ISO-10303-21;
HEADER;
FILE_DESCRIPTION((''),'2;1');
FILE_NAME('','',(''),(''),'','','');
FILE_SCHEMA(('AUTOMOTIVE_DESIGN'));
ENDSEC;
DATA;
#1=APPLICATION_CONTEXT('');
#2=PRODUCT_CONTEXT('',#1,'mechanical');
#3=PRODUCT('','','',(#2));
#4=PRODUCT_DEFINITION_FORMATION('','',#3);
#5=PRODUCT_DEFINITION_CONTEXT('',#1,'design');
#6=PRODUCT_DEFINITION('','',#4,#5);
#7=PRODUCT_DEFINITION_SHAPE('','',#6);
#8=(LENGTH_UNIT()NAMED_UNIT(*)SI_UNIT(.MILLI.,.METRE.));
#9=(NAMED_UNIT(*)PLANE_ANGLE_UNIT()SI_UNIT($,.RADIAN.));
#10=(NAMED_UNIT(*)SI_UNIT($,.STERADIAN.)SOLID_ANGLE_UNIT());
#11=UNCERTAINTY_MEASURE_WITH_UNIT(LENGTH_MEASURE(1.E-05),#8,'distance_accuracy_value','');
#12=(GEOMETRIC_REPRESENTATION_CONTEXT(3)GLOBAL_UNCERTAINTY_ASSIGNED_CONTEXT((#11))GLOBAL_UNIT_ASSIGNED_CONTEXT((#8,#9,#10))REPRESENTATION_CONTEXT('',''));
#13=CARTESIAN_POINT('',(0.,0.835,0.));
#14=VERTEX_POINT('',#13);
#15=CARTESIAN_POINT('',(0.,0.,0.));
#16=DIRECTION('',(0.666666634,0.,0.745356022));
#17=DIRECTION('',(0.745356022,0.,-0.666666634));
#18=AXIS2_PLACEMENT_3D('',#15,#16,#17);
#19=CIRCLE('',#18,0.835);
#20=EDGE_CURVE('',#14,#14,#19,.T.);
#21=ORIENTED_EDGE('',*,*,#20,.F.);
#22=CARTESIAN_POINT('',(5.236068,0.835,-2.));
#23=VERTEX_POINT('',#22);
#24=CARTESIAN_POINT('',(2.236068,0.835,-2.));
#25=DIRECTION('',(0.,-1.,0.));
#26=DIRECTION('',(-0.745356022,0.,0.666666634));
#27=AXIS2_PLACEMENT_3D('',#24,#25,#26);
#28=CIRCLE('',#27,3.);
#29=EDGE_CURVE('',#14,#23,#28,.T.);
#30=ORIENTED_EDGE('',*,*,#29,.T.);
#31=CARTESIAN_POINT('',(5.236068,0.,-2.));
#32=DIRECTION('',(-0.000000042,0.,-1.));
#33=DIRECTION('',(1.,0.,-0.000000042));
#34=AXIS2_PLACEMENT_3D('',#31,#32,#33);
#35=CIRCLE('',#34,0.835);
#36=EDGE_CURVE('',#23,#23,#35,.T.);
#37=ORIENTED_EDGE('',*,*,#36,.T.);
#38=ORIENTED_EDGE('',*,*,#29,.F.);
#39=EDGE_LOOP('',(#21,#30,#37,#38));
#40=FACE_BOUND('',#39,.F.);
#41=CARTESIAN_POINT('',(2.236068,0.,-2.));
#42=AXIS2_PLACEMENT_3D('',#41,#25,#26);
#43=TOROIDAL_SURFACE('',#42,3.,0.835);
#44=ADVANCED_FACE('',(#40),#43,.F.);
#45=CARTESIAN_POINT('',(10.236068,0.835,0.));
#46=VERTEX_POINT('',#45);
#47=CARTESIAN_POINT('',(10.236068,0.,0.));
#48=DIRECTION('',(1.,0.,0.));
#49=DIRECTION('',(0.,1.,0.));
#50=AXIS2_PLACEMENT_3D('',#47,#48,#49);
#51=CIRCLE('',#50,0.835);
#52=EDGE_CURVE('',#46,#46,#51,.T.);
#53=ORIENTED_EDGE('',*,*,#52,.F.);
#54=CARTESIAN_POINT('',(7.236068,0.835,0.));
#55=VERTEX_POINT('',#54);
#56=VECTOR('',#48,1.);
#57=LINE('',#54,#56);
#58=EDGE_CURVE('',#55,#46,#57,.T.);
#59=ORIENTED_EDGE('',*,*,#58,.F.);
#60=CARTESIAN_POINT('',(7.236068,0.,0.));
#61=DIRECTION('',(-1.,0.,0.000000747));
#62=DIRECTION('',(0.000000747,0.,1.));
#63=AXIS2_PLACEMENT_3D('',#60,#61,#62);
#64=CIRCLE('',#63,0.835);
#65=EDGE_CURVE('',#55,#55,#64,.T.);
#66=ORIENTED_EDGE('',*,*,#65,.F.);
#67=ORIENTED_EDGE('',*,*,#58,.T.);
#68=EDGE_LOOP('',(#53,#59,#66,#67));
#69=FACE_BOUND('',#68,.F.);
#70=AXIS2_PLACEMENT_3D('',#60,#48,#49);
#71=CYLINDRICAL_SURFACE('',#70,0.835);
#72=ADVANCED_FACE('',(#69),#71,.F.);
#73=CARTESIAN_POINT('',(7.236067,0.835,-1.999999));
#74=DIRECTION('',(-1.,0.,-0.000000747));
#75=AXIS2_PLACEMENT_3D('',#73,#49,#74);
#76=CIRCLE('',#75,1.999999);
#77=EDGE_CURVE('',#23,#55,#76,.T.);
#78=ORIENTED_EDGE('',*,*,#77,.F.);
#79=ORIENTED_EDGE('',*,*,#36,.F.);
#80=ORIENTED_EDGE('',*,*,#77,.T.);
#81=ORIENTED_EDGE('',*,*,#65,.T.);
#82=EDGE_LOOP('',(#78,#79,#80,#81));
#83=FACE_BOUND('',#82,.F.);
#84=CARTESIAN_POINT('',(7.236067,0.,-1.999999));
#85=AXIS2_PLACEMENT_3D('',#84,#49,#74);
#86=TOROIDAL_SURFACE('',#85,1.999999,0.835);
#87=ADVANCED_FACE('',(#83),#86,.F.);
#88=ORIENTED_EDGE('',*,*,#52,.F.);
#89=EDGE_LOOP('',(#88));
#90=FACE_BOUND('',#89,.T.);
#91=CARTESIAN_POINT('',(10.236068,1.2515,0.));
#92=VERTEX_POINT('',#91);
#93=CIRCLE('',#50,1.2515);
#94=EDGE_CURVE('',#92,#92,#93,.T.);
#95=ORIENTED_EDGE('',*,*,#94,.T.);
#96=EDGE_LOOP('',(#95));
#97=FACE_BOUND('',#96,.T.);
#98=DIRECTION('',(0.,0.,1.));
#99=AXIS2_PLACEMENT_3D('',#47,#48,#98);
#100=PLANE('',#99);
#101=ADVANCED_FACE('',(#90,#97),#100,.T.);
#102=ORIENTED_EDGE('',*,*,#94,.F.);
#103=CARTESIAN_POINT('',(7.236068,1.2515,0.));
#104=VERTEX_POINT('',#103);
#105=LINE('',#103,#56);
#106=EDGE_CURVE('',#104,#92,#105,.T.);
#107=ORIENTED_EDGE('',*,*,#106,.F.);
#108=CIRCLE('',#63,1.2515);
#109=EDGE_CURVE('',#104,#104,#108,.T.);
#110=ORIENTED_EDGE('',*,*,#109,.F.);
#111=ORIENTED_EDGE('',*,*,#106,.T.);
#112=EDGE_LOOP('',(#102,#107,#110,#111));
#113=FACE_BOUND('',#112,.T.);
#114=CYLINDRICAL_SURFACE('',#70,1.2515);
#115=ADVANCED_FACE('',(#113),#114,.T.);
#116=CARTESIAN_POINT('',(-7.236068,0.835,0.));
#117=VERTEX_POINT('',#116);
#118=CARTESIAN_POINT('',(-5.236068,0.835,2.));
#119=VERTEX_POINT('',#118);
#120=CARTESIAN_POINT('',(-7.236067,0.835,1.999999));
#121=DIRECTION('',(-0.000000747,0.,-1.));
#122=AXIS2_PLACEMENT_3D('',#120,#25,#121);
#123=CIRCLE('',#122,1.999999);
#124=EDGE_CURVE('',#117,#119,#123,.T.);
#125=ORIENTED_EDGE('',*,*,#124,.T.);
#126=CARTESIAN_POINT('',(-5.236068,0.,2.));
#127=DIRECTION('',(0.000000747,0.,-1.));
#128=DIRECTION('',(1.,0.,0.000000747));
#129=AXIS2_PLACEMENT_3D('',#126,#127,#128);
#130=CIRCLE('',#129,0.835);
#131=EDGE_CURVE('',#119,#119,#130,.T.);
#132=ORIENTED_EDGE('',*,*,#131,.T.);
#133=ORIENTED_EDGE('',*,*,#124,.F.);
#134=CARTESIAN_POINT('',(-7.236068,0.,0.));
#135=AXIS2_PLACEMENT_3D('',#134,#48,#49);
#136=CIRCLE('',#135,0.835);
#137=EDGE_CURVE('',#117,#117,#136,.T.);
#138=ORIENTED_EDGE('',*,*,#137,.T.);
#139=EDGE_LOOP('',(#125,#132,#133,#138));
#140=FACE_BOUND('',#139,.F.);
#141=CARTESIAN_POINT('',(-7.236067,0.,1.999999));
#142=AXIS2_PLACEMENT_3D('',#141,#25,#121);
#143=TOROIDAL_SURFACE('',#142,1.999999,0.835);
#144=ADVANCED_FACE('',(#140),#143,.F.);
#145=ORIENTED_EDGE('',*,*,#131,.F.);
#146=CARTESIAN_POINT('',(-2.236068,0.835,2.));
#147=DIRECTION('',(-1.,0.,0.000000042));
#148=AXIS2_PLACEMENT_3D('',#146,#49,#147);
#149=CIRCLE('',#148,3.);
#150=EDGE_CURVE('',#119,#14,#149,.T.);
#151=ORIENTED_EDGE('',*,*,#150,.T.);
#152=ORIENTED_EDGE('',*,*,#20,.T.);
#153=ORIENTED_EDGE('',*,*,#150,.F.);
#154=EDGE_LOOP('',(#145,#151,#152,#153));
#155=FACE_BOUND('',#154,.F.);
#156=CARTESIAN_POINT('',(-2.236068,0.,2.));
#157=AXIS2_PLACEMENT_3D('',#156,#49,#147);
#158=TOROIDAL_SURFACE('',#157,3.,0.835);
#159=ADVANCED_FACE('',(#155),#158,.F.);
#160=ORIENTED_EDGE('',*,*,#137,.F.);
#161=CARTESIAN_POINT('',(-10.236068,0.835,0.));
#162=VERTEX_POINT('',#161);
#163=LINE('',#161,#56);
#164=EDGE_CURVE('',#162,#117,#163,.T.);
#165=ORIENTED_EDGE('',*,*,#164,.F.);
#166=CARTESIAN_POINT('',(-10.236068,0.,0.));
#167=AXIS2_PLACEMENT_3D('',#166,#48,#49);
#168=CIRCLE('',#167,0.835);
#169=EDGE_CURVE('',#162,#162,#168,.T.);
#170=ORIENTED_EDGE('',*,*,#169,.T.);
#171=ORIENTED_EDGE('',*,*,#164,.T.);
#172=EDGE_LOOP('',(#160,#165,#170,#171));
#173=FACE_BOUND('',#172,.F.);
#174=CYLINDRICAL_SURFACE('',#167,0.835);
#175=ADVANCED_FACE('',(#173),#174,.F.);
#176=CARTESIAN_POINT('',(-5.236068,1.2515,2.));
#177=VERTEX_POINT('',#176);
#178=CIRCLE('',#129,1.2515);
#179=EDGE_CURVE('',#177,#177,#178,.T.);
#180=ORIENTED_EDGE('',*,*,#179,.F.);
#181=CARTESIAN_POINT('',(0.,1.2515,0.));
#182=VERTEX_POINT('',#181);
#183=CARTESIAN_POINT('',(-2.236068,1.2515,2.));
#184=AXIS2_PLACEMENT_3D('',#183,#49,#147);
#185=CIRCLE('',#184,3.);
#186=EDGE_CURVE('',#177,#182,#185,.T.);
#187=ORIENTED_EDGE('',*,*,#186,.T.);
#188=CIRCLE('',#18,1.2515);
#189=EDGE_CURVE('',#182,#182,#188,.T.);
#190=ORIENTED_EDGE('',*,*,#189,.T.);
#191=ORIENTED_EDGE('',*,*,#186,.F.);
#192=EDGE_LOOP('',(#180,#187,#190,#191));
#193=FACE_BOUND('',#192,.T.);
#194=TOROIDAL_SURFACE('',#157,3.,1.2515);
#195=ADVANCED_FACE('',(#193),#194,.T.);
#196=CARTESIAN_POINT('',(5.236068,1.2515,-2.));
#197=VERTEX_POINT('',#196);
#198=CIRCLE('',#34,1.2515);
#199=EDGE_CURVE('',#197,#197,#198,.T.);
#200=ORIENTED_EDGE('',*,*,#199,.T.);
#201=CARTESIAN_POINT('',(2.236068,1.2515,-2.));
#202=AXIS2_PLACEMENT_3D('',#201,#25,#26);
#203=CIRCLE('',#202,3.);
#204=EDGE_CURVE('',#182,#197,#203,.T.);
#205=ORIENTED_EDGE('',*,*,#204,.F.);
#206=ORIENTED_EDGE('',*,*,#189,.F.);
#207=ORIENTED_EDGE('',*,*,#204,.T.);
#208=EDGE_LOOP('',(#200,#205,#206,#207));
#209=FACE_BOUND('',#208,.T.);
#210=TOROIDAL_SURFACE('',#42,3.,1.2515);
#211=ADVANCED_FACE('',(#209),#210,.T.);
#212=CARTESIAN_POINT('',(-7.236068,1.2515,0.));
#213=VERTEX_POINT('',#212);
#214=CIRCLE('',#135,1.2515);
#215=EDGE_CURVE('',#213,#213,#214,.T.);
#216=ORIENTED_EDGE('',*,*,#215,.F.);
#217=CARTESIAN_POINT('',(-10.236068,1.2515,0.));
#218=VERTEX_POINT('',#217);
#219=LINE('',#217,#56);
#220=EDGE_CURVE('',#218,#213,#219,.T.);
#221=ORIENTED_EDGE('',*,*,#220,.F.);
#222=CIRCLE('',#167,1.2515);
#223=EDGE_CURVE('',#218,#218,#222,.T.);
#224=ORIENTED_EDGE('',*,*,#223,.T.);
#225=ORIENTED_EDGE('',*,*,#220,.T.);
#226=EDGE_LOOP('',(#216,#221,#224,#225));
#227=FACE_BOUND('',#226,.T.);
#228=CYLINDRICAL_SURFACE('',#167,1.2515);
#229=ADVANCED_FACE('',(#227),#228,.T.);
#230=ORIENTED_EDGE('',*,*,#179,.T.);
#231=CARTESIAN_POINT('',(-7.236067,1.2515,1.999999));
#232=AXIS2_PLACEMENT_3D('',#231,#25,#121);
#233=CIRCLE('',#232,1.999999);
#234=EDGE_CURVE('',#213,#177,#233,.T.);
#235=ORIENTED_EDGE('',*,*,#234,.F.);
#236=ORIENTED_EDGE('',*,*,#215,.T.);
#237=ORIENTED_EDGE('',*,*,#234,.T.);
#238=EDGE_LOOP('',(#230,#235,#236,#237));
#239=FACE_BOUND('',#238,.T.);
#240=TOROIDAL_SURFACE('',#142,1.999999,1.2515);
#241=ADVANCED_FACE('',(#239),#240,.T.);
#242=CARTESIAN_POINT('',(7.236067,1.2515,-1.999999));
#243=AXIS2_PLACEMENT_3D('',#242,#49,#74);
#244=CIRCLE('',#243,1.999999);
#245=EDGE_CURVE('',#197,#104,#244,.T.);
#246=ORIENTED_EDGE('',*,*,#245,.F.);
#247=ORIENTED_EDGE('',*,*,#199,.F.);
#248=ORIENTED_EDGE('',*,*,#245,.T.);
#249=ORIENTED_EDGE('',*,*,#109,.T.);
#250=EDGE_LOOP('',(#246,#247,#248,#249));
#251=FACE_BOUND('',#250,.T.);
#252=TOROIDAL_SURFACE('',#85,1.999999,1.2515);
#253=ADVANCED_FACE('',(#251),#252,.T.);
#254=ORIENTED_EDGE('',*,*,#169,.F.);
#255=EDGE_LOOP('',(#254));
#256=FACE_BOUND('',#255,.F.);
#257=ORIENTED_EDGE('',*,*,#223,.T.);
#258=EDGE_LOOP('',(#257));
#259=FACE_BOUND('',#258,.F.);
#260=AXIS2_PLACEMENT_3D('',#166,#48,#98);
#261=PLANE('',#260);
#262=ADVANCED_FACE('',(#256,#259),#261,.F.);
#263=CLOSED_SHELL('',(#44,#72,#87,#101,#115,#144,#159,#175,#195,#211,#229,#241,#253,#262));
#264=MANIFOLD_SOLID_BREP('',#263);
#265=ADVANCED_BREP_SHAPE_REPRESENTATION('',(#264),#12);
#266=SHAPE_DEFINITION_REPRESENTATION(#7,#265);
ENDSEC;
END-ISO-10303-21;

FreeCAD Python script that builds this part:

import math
import FreeCAD as App
import Part
import Sketcher
from FreeCAD import Vector

doc = App.newDocument("Part")
params = doc.addObject("Spreadsheet::Sheet", "Params")
for row, (alias, value) in enumerate([
    ("sketch1_diameter", "1.67 mm"),
    ("sketch2_radius", "1.999999 mm"),
    ("sketch2_radius2", "3 mm"),
    ("sketch2_width", "3 mm"),
], start=1):
    params.set(f"A{row}", alias)
    params.set(f"B{row}", "=" + value)
    params.setAlias(f"B{row}", alias)

body = doc.addObject("PartDesign::Body", "Body")

sketch1 = body.newObject("Sketcher::SketchObject", "Sketch")
sketch1.AttachmentSupport = (doc.getObject("YZ_Plane"), [""])
sketch1.MapMode = "FlatFace"
sketch1.AttachmentOffset = App.Placement(Vector(0, 0, -10.236068), App.Rotation())
sketch1.addGeometry([
    Part.Circle(Vector(0, 0, 0), Vector(0, 0, 1), 1.3),
    Part.Circle(Vector(0, 0, 0), Vector(0, 0, 1), 0.8),
], False)
sketch1.addConstraint([
    Sketcher.Constraint("Coincident", 0, 3, -1, 1),
    Sketcher.Constraint("Coincident", 1, 3, -1, 1),
    Sketcher.Constraint("Diameter", 1, 1.67),
    Sketcher.Constraint("Diameter", 0, 2.503),
])
sketch1.setExpression("Constraints[2]", "Params.sketch1_diameter")

sketch2 = body.newObject("Sketcher::SketchObject", "Sketch001")
sketch2.AttachmentSupport = (doc.getObject("XZ_Plane"), [""])
sketch2.MapMode = "FlatFace"
sketch2.addGeometry([
    Part.LineSegment(Vector(-10.2, 0, 0), Vector(-7.2, 0, 0)),
    Part.ArcOfCircle(Part.Circle(Vector(-7.2, 2, 0), Vector(0, 0, 1), 2), math.radians(-90), math.radians(0)),
    Part.ArcOfCircle(Part.Circle(Vector(-2.2, 2, 0), Vector(0, 0, 1), 3), math.radians(-42), math.radians(180)),
    Part.ArcOfCircle(Part.Circle(Vector(2.2, -2, 0), Vector(0, 0, 1), 3), math.radians(138), math.radians(360)),
    Part.ArcOfCircle(Part.Circle(Vector(7.2, -2, 0), Vector(0, 0, 1), 2), math.radians(90), math.radians(180)),
    Part.LineSegment(Vector(7.2, 0, 0), Vector(10.2, 0, 0)),
], False)
sketch2.addConstraint([
    Sketcher.Constraint("Tangent", 0, 2, 1, 1),
    Sketcher.Constraint("Tangent", 1, 2, 2, 2),
    Sketcher.Constraint("Tangent", 2, 1, 3, 1),
    Sketcher.Constraint("Tangent", 3, 2, 4, 2),
    Sketcher.Constraint("Tangent", 4, 1, 5, 1),
    Sketcher.Constraint("Horizontal", 0),
    Sketcher.Constraint("Horizontal", 5),
    Sketcher.Constraint("Coincident", 2, 1, -1, 1),
    Sketcher.Constraint("Equal", 2, 3),
    Sketcher.Constraint("Equal", 1, 4),
    Sketcher.Constraint("Symmetric", 0, 1, 5, 2, -1, 1),
    Sketcher.Constraint("PointOnObject", 0, 1, -1),
    Sketcher.Constraint("Horizontal", 1, 3, 2, 3),
    Sketcher.Constraint("Radius", 1, 1.999999),
    Sketcher.Constraint("Radius", 2, 3.0),
    Sketcher.Constraint("DistanceX", 0, 1, 0, 2, 3.0),
])
sketch2.setExpression("Constraints[13]", "Params.sketch2_radius")
sketch2.setExpression("Constraints[14]", "Params.sketch2_radius2")
sketch2.setExpression("Constraints[15]", "Params.sketch2_width")
doc.recompute()

additivepipe = body.newObject("PartDesign::AdditivePipe", "AdditivePipe")
additivepipe.Profile = sketch1
additivepipe.Spine = (sketch2, ["Edge1", "Edge2", "Edge3", "Edge4", "Edge5", "Edge6"])

doc.recompute()
